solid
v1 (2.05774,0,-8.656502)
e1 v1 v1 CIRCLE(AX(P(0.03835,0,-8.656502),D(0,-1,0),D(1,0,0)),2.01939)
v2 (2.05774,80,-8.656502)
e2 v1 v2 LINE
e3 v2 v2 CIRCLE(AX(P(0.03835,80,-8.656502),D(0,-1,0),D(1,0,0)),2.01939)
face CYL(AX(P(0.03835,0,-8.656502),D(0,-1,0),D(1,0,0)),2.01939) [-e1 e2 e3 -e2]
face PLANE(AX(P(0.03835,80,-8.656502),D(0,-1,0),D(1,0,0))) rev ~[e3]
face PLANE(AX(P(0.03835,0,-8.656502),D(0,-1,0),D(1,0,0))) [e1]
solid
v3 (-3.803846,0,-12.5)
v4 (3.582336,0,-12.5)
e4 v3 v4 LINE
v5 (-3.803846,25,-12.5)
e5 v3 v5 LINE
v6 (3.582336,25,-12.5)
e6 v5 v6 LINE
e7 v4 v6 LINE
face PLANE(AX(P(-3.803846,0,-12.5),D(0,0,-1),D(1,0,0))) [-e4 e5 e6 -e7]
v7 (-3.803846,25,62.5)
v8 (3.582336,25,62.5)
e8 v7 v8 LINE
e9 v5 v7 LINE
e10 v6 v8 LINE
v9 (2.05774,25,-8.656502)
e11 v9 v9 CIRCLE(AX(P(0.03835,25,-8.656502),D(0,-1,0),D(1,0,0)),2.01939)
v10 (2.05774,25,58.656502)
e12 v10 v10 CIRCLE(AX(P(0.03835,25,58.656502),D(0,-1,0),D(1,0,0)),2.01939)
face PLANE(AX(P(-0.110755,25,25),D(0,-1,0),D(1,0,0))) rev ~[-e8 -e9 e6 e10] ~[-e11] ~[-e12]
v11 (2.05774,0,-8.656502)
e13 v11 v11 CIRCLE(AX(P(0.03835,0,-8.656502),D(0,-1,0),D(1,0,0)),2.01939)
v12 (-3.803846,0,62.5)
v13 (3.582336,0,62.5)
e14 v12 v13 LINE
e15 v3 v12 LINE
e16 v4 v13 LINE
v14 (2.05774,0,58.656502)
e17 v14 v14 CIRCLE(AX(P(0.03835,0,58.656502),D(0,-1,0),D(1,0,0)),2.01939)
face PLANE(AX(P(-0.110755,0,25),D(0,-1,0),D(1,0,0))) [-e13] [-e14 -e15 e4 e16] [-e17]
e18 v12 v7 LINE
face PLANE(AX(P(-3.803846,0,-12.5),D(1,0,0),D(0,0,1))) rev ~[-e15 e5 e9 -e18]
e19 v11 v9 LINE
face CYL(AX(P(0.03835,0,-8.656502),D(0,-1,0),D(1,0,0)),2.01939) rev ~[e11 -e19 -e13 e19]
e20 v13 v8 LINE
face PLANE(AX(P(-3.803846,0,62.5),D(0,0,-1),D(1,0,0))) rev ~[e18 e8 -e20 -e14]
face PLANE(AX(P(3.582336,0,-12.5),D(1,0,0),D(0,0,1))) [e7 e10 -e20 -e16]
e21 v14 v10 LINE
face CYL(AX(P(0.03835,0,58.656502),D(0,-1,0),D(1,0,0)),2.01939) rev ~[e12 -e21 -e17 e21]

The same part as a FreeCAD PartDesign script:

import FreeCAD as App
import Part
import Sketcher
from FreeCAD import Vector
Q = App.Units.Quantity


def add_polygon(sketch, points):
    """Adds a closed chain of lines whose ends are joined by coincident constraints."""
    first, n = sketch.GeometryCount, len(points)
    for a, b in zip(points, points[1:] + points[:1]):
        sketch.addGeometry(Part.LineSegment(App.Vector(*a, 0), App.Vector(*b, 0)), False)
    for i in range(n):
        sketch.addConstraint(Sketcher.Constraint("Coincident", first + i, 2, first + (i + 1) % n, 1))

doc = App.newDocument("Part")
body = doc.addObject("PartDesign::Body", "Body")

# Sketch on XZ plane
sketch1 = body.newObject("Sketcher::SketchObject", "Sketch")
sketch1.AttachmentSupport = (doc.getObject("XZ_Plane"), [""])
sketch1.MapMode = "FlatFace"
add_polygon(sketch1, [(-3.8, 62.5), (-3.8, -12.5), (3.6, -12.5), (3.6, 62.5)])  # lines 0-3
sketch1.addGeometry(Part.Circle(Vector(0, -8.7, 0), Vector(0, 0, 1), 2), False)  # 4
sketch1.addGeometry(Part.Circle(Vector(0, 58.7, 0), Vector(0, 0, 1), 2), False)  # 5
sketch1.addConstraint(Sketcher.Constraint("Vertical", 0))
sketch1.addConstraint(Sketcher.Constraint("Horizontal", 1))
sketch1.addConstraint(Sketcher.Constraint("Vertical", 2))
sketch1.addConstraint(Sketcher.Constraint("Horizontal", 3))
sketch1.addConstraint(Sketcher.Constraint("Equal", 4, 5))
sketch1.addConstraint(Sketcher.Constraint("Vertical", 4, 3, 5, 3))
sketch1.addConstraint(Sketcher.Constraint("DistanceY", 0, 2, 0, 1, Q("75 mm")))
sketch1.addConstraint(Sketcher.Constraint("DistanceY", 0, 2, -1, 1, Q("12.5 mm")))
sketch1.addConstraint(Sketcher.Constraint("Diameter", 4, Q("4.03878 mm")))
sketch1.addConstraint(Sketcher.Constraint("DistanceX", 1, 1, 1, 2, Q("7.386182 mm")))
sketch1.addConstraint(Sketcher.Constraint("DistanceY", 0, 2, 4, 3, Q("3.843498 mm")))
sketch1.addConstraint(Sketcher.Constraint("DistanceX", -1, 1, 4, 3, Q("0.03835 mm")))
sketch1.addConstraint(Sketcher.Constraint("DistanceY", -1, 1, 5, 3, Q("58.656502 mm")))
sketch1.addConstraint(Sketcher.Constraint("DistanceX", 0, 2, -1, 1, Q("3.803846 mm")))
pad1 = body.newObject("PartDesign::Pad", "Pad")
pad1.Profile = sketch1
pad1.Length = 25
pad1.Reversed = True
body2 = doc.addObject("PartDesign::Body", "Body001")

# Sketch on XZ plane
sketch2 = body2.newObject("Sketcher::SketchObject", "Sketch001")
sketch2.AttachmentSupport = (doc.getObject("XZ_Plane001"), [""])
sketch2.MapMode = "FlatFace"
sketch2.addGeometry(Part.Circle(Vector(0, -8.7, 0), Vector(0, 0, 1), 2), False)
sketch2.addConstraint(Sketcher.Constraint("Diameter", 0, Q("4.03878 mm")))
sketch2.addConstraint(Sketcher.Constraint("DistanceX", -1, 1, 0, 3, Q("0.03835 mm")))
sketch2.addConstraint(Sketcher.Constraint("DistanceY", 0, 3, -1, 1, Q("8.656502 mm")))
pad2 = body2.newObject("PartDesign::Pad", "Pad001")
pad2.Profile = sketch2
pad2.Length = 80
pad2.Reversed = True

doc.recompute()
